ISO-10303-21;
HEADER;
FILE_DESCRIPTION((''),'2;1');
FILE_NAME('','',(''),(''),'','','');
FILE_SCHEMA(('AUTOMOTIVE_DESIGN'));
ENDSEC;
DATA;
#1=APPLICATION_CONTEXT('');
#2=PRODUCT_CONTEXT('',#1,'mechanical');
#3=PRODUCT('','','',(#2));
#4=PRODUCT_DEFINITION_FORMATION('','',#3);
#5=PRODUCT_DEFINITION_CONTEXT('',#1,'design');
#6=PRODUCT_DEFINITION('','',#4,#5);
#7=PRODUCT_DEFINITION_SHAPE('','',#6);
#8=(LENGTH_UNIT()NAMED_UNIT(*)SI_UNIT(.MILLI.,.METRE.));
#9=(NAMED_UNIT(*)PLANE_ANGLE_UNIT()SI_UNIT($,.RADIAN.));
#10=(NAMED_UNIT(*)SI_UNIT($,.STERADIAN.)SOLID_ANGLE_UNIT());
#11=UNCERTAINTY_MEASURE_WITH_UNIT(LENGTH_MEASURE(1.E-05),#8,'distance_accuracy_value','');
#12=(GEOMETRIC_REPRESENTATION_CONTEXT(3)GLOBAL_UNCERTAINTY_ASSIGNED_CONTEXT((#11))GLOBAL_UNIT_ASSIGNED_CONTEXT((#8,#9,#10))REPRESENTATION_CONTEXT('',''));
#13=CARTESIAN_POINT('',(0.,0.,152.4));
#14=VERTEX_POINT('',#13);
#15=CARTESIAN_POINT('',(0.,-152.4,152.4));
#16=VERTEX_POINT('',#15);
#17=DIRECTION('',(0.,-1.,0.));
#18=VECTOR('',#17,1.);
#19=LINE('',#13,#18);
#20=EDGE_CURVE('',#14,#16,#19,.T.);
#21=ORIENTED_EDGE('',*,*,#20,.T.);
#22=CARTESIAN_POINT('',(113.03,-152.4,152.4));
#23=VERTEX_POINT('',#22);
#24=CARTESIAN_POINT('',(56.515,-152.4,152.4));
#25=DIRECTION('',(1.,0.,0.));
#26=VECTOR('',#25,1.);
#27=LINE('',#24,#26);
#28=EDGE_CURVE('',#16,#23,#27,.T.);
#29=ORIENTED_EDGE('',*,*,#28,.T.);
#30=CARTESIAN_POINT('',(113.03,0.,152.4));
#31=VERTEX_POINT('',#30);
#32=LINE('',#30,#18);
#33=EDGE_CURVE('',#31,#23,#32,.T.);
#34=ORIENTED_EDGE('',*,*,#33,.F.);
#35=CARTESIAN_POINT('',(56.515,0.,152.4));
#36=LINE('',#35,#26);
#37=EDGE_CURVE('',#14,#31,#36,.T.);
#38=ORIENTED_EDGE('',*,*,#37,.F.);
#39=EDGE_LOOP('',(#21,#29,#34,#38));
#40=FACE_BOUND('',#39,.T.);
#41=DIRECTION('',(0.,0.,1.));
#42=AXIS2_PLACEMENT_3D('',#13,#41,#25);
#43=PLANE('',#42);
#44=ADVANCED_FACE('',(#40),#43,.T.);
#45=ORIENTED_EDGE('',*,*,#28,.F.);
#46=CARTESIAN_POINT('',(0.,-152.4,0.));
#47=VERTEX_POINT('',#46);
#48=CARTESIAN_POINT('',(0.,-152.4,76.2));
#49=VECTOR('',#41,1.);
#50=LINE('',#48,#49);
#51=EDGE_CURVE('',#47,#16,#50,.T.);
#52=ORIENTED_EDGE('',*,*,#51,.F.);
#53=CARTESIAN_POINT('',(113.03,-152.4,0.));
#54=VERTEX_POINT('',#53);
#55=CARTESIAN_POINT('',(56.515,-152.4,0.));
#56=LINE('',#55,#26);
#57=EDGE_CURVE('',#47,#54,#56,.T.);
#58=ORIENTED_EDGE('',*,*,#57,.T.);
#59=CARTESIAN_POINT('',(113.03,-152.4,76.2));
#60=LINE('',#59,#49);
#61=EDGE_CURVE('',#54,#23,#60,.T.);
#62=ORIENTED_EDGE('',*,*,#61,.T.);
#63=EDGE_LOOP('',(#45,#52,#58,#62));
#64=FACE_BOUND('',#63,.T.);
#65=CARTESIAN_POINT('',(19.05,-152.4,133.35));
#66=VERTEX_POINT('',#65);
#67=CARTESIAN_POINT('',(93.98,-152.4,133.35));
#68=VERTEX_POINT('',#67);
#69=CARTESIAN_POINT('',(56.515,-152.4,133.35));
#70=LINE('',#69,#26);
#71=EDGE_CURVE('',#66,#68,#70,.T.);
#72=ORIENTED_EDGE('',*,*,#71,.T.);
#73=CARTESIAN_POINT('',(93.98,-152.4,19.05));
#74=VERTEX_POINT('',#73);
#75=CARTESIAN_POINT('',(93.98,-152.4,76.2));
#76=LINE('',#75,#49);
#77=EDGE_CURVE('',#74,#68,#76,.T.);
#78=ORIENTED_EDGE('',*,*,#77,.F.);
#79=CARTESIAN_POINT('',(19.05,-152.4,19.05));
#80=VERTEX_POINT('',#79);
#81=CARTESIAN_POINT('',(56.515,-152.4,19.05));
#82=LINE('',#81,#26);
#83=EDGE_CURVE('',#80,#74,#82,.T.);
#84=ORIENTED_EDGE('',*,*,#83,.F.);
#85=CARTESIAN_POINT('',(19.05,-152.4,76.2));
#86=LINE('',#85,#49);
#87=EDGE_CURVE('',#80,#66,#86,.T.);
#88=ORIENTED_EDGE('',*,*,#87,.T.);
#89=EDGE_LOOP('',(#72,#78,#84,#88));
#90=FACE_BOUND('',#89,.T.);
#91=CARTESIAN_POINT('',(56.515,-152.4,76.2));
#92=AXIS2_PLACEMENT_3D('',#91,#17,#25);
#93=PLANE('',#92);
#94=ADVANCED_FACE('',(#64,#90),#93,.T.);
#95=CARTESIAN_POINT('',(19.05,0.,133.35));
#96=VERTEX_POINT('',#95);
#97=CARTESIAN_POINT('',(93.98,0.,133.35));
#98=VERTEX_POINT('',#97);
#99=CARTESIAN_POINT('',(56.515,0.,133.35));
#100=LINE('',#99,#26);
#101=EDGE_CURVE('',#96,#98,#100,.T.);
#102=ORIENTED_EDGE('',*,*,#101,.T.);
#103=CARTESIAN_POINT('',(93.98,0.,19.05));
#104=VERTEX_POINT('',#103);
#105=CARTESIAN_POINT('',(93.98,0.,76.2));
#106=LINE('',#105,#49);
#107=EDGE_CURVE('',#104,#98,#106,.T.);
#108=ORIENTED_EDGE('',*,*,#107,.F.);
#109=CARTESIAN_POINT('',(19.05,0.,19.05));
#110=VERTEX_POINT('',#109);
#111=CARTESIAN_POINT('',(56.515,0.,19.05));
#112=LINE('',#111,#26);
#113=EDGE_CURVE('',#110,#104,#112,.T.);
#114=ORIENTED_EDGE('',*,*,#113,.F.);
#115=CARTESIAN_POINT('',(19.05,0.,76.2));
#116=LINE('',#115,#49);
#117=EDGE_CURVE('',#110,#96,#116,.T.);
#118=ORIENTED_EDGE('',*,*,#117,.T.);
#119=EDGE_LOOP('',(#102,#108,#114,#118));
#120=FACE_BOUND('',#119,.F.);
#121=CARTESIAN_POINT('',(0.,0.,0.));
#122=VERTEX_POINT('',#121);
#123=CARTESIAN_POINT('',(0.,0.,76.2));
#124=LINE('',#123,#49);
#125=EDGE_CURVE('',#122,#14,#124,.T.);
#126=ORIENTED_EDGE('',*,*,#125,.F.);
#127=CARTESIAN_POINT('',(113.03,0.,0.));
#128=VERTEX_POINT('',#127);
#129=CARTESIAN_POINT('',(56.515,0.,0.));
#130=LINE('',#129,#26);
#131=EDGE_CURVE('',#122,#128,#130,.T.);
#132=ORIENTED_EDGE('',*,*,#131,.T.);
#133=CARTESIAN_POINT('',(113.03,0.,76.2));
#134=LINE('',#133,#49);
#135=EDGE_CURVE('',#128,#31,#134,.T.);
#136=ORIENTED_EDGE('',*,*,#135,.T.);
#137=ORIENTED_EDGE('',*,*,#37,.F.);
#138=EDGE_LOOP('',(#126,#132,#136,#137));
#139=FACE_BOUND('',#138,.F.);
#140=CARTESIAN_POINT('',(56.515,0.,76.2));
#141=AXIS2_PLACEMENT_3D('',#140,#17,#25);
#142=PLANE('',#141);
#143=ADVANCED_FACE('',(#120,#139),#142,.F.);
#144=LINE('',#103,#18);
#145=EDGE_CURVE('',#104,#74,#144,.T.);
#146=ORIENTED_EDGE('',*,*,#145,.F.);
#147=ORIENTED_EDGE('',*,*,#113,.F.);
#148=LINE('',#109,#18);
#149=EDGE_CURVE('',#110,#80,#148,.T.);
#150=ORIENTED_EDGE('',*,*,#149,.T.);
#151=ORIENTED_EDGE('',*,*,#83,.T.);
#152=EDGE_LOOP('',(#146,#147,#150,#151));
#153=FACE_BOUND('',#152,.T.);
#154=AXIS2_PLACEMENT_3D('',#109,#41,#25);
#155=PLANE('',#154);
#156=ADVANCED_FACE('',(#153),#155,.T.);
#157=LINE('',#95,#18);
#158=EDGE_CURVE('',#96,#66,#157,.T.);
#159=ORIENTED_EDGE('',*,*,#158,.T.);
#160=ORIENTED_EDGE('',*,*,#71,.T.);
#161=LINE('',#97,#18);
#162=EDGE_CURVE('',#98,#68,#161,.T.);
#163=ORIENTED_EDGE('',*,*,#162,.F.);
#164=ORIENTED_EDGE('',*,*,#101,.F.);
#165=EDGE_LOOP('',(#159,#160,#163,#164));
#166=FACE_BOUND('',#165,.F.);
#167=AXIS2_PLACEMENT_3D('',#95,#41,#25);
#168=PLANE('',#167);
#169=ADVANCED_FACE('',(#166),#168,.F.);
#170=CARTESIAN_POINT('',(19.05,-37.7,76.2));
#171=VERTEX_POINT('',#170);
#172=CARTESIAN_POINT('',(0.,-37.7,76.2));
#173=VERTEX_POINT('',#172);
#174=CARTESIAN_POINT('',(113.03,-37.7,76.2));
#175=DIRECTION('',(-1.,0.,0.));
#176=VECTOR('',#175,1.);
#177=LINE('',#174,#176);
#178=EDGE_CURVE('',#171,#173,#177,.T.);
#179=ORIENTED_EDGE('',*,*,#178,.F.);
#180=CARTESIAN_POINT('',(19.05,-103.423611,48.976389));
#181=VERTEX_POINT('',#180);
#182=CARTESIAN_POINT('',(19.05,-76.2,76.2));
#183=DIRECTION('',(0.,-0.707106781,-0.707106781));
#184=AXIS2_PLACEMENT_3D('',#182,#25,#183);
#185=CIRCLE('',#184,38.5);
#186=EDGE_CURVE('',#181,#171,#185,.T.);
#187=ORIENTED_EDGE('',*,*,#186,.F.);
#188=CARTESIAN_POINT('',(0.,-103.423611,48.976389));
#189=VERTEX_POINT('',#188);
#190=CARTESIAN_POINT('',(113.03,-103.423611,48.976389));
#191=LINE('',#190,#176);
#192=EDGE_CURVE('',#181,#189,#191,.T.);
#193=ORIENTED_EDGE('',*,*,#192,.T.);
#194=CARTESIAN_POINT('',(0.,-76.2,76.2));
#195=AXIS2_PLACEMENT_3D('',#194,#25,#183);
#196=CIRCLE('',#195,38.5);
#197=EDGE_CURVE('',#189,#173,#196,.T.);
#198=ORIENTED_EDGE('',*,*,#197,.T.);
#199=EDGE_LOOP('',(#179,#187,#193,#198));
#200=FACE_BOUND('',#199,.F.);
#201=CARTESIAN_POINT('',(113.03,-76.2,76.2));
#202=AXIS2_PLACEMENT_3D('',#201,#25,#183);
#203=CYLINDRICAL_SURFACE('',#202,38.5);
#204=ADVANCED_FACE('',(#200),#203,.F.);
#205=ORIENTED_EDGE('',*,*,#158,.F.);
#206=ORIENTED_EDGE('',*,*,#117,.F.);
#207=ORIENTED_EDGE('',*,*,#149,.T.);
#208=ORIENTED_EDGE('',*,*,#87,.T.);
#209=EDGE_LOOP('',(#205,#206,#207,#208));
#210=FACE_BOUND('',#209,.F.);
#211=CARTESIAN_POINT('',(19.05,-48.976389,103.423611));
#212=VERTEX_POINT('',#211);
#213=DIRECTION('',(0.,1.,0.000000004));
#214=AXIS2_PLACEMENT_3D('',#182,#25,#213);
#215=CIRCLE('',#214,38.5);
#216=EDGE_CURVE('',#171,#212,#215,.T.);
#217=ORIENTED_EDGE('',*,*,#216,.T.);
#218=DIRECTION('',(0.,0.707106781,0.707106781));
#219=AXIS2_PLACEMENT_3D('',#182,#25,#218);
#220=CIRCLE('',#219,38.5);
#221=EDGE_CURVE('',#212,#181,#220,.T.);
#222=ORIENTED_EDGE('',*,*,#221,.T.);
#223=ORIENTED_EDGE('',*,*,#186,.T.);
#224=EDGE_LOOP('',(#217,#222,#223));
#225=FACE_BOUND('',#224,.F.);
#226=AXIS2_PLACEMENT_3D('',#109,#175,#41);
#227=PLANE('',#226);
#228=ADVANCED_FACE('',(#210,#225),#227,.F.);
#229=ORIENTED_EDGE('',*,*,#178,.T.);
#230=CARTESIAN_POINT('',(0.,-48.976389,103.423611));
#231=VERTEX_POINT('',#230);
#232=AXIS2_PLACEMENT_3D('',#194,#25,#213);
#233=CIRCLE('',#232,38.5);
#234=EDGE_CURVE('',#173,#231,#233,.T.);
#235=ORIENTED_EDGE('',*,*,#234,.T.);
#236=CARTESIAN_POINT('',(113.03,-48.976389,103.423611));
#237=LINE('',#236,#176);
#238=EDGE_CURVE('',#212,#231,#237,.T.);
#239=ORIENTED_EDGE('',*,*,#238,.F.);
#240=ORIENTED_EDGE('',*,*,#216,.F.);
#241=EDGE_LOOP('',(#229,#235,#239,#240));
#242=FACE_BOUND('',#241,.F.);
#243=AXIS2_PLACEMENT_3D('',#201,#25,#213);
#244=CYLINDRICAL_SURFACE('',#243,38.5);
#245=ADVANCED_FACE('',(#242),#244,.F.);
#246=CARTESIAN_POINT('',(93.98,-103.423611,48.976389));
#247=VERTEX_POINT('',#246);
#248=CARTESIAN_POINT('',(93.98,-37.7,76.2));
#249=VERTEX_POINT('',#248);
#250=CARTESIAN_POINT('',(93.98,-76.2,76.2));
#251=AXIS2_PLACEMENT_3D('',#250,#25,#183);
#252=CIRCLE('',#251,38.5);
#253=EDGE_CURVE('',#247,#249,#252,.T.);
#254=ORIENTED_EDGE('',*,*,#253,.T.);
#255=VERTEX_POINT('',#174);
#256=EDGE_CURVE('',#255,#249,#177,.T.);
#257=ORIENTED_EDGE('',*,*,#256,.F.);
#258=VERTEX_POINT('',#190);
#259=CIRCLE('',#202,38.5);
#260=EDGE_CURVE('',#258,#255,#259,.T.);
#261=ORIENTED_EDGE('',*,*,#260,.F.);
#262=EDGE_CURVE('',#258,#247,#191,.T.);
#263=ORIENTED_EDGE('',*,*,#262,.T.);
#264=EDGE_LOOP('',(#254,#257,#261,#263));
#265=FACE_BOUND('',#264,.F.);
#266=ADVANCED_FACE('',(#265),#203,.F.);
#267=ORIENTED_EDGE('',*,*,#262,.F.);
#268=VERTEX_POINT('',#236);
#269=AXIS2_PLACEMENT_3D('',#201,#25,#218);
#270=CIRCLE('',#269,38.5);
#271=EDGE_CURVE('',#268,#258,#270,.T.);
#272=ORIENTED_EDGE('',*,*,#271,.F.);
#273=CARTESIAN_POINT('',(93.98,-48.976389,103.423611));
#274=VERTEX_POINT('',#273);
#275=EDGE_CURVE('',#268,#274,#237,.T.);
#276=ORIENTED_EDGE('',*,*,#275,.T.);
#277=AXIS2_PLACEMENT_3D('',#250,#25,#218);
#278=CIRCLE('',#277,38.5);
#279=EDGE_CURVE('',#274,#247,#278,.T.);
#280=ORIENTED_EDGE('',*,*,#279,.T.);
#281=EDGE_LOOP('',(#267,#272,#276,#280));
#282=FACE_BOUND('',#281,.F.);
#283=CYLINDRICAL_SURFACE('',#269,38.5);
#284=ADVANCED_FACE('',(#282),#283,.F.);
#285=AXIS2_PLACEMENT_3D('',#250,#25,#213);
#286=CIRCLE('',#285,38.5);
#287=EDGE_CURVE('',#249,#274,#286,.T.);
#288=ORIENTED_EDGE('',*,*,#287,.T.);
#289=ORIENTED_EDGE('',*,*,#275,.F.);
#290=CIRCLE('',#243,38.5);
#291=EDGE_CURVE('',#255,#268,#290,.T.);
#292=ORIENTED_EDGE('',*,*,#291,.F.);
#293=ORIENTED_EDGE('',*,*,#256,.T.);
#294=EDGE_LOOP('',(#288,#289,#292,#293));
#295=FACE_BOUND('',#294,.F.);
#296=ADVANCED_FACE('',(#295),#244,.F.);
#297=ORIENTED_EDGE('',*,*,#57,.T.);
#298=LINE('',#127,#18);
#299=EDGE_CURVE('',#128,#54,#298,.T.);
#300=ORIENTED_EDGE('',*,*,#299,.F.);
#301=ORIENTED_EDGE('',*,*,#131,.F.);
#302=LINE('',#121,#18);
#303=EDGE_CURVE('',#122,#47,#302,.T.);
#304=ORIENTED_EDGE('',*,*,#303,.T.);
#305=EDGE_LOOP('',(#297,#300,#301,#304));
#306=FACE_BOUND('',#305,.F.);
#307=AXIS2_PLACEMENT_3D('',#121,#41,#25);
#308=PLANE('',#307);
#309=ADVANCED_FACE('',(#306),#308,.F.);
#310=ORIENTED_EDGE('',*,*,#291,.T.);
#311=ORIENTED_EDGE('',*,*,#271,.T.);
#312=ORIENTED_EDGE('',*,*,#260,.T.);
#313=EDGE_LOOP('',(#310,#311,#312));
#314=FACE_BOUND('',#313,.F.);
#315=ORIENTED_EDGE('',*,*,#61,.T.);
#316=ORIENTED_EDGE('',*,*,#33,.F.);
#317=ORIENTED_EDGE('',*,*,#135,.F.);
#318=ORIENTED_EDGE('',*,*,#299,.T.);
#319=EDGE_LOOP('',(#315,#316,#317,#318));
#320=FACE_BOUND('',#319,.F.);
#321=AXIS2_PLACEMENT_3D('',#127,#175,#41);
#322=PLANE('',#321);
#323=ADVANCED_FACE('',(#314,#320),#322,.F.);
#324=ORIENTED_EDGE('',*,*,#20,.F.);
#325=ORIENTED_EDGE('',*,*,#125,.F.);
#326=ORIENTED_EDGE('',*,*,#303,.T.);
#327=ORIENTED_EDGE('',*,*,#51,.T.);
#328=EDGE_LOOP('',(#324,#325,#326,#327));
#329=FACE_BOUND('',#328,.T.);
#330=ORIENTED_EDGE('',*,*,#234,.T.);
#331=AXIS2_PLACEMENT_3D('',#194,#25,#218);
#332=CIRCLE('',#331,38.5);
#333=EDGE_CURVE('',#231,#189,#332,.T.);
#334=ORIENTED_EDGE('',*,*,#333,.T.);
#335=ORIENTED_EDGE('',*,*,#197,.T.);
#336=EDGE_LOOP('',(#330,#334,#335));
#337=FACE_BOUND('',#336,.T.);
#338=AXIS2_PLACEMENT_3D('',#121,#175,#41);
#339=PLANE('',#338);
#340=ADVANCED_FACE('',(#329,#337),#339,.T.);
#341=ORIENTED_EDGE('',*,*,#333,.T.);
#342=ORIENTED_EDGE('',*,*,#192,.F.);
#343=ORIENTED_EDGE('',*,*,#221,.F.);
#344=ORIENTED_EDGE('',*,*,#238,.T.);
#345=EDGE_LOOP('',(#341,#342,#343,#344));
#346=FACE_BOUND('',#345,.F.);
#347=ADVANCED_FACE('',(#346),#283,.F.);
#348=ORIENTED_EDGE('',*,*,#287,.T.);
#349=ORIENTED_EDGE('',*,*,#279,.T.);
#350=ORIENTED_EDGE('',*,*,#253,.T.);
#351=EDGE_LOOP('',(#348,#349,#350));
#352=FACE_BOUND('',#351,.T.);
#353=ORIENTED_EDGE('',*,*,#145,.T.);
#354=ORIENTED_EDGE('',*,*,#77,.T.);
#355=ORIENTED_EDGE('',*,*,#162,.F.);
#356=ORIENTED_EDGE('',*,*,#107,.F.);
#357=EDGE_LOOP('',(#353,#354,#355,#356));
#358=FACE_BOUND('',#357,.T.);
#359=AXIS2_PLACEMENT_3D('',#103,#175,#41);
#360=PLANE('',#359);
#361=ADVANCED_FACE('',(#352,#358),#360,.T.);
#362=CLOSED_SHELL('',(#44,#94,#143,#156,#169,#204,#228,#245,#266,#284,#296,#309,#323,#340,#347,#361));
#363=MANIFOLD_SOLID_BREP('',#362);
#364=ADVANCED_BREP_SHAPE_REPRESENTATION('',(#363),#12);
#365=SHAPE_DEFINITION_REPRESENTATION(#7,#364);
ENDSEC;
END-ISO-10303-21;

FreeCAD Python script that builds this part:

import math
import FreeCAD as App
import Part
import Sketcher
Q = App.Units.Quantity


def add_polygon(sketch, points):
    """Adds a closed chain of lines whose ends are joined by coincident constraints."""
    first, n = sketch.GeometryCount, len(points)
    for a, b in zip(points, points[1:] + points[:1]):
        sketch.addGeometry(Part.LineSegment(App.Vector(*a, 0), App.Vector(*b, 0)), False)
    for i in range(n):
        sketch.addConstraint(Sketcher.Constraint("Coincident", first + i, 2, first + (i + 1) % n, 1))

doc = App.newDocument("Part")
body = doc.addObject("PartDesign::Body", "Body")

# Sketch on XZ plane
sketch1 = body.newObject("Sketcher::SketchObject", "Sketch")
sketch1.AttachmentSupport = (doc.getObject("XZ_Plane"), [""])
sketch1.MapMode = "FlatFace"
add_polygon(sketch1, [(0, 152), (0, 0), (113, 0), (113, 152)])  # lines 0-3
add_polygon(sketch1, [(94, 19), (19, 19), (19, 133), (94, 133)])  # lines 4-7
sketch1.addConstraint(Sketcher.Constraint("Vertical", 0))
sketch1.addConstraint(Sketcher.Constraint("Horizontal", 1))
sketch1.addConstraint(Sketcher.Constraint("Vertical", 2))
sketch1.addConstraint(Sketcher.Constraint("Horizontal", 3))
sketch1.addConstraint(Sketcher.Constraint("Horizontal", 4))
sketch1.addConstraint(Sketcher.Constraint("Vertical", 5))
sketch1.addConstraint(Sketcher.Constraint("Horizontal", 6))
sketch1.addConstraint(Sketcher.Constraint("Vertical", 7))
sketch1.addConstraint(Sketcher.Constraint("Coincident", 0, 2, -1, 1))
sketch1.addConstraint(Sketcher.Constraint("DistanceY", 0, 2, 0, 1, Q("6 in")))
sketch1.addConstraint(Sketcher.Constraint("DistanceY", 5, 1, 5, 2, Q("4.5 in")))
sketch1.addConstraint(Sketcher.Constraint("DistanceX", 1, 1, 1, 2, Q("4.45 in")))
sketch1.addConstraint(Sketcher.Constraint("DistanceX", 4, 2, 4, 1, Q("2.95 in")))
sketch1.addConstraint(Sketcher.Constraint("DistanceX", -1, 1, 6, 2, Q("3.7 in")))
sketch1.addConstraint(Sketcher.Constraint("DistanceY", -1, 1, 4, 2, Q("0.75 in")))
pad1 = body.newObject("PartDesign::Pad", "Pad")
pad1.Profile = sketch1
pad1.Length = Q("6 in")

# Sketch on YZ plane
sketch2 = body.newObject("Sketcher::SketchObject", "Sketch001")
sketch2.AttachmentSupport = (doc.getObject("YZ_Plane"), [""])
sketch2.MapMode = "FlatFace"
sketch2.AttachmentOffset = App.Placement(App.Vector(0, 0, 4.45 * 25.4), App.Rotation())
sketch2.addGeometry(Part.ArcOfCircle(Part.Circle(App.Vector(-76, 76, 0), App.Vector(0, 0, 1), 38), math.radians(0), math.radians(45)), False)
sketch2.addGeometry(Part.ArcOfCircle(Part.Circle(App.Vector(-76, 76, 0), App.Vector(0, 0, 1), 38), math.radians(45), math.radians(225)), False)
sketch2.addGeometry(Part.ArcOfCircle(Part.Circle(App.Vector(-76, 76, 0), App.Vector(0, 0, 1), 38), math.radians(-135), math.radians(0)), False)
sketch2.addConstraint(Sketcher.Constraint("Tangent", 0, 2, 1, 1))
sketch2.addConstraint(Sketcher.Constraint("Tangent", 1, 2, 2, 1))
sketch2.addConstraint(Sketcher.Constraint("Tangent", 2, 2, 0, 1))
sketch2.addConstraint(Sketcher.Constraint("Horizontal", 1, 3, 2, 2))
sketch2.addConstraint(Sketcher.Constraint("DistanceX", 0, 3, -1, 1, Q("3 in")))
sketch2.addConstraint(Sketcher.Constraint("DistanceY", -1, 1, 0, 3, Q("3 in")))
sketch2.addConstraint(Sketcher.Constraint("Radius", 0, Q("38.5 mm")))
sketch2.addConstraint(Sketcher.Constraint("DistanceX", 0, 2, -1, 1, Q("48.976389 mm")))
sketch2.addConstraint(Sketcher.Constraint("DistanceX", 1, 2, -1, 1, Q("103.423611 mm")))
pocket1 = body.newObject("PartDesign::Pocket", "Pocket")
pocket1.Profile = sketch2
pocket1.Type = "ThroughAll"

doc.recompute()
